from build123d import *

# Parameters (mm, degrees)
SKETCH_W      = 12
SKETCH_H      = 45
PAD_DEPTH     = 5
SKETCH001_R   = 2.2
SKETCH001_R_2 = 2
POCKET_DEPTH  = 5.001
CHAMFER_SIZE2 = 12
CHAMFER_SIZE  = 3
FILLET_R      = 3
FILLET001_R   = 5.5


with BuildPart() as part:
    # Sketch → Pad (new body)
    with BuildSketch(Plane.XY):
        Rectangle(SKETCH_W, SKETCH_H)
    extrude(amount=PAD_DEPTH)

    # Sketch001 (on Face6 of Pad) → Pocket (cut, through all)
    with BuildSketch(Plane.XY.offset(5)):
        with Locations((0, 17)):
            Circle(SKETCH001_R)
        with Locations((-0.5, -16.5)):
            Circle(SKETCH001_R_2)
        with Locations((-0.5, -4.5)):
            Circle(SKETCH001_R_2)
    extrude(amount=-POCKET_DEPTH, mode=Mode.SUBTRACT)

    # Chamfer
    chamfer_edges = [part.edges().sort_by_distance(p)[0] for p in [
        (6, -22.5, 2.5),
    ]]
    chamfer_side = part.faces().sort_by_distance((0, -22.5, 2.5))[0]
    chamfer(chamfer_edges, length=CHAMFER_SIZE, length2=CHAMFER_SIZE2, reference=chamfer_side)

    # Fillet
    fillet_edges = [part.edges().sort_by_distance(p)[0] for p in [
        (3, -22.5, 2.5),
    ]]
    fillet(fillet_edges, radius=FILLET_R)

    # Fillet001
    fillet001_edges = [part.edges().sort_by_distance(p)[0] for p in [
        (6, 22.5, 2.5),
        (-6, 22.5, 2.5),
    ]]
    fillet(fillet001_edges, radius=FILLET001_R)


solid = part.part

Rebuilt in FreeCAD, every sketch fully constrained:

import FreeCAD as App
import Part
import Sketcher

V = App.Vector


def edges_at(feature, points):
    """Names of the edges that pass closest to the given points."""
    edges = feature.Shape.Edges
    near = lambda p: min(range(len(edges)), key=lambda i: edges[i].distToShape(Part.Vertex(*p))[0])
    return sorted({f"Edge{near(p) + 1}" for p in points})


def add_polygon(sketch, points):
    """Adds a closed chain of lines whose ends are joined by coincident constraints."""
    first, n = sketch.GeometryCount, len(points)
    for a, b in zip(points, points[1:] + points[:1]):
        sketch.addGeometry(Part.LineSegment(App.Vector(*a, 0), App.Vector(*b, 0)), False)
    for i in range(n):
        sketch.addConstraint(Sketcher.Constraint("Coincident", first + i, 2, first + (i + 1) % n, 1))

doc = App.newDocument("Part")
body = doc.addObject("PartDesign::Body", "Body")

# Sketch on XY plane
sketch1 = body.newObject("Sketcher::SketchObject", "Sketch")
sketch1.AttachmentSupport = (doc.getObject("XY_Plane"), [""])
sketch1.MapMode = "FlatFace"
add_polygon(sketch1, [(-6, 22), (-6, -22), (6, -22), (6, 22)])  # lines 0-3
sketch1.addConstraint([
    Sketcher.Constraint("Vertical", 0),
    Sketcher.Constraint("Horizontal", 1),
    Sketcher.Constraint("Vertical", 2),
    Sketcher.Constraint("Horizontal", 3),
    Sketcher.Constraint("Symmetric", 0, 2, 2, 2, -1, 1),
    Sketcher.Constraint("DistanceX", 1, 1, 1, 2, 12.0),
    Sketcher.Constraint("DistanceY", 0, 2, 0, 1, 45.0),
])
pad1 = body.newObject("PartDesign::Pad", "Pad")
pad1.Profile = sketch1
pad1.Length = 5

# Sketch on XY plane
sketch2 = body.newObject("Sketcher::SketchObject", "Sketch001")
sketch2.AttachmentSupport = (doc.getObject("XY_Plane"), [""])
sketch2.MapMode = "FlatFace"
sketch2.AttachmentOffset = App.Placement(V(0, 0, 5), App.Rotation())
sketch2.addGeometry([
    Part.Circle(V(0, 17, 0), V(0, 0, 1), 2.2),
    Part.Circle(V(-0.5, -16.5, 0), V(0, 0, 1), 2),
    Part.Circle(V(-0.5, -4.5, 0), V(0, 0, 1), 2),
], False)
sketch2.addConstraint([
    Sketcher.Constraint("Equal", 1, 2),
    Sketcher.Constraint("PointOnObject", 0, 3, -2),
    Sketcher.Constraint("Vertical", 1, 3, 2, 3),
    Sketcher.Constraint("Diameter", 1, 4.0),
    Sketcher.Constraint("Diameter", 0, 4.4),
    Sketcher.Constraint("DistanceY", -1, 1, 0, 3, 17.0),
    Sketcher.Constraint("DistanceY", 1, 3, 2, 3, 12.0),
    Sketcher.Constraint("DistanceX", 1, 3, -1, 1, 0.5),
    Sketcher.Constraint("DistanceY", 1, 3, -1, 1, 16.5),
])
pocket1 = body.newObject("PartDesign::Pocket", "Pocket")
pocket1.Profile = sketch2
pocket1.Type = "ThroughAll"
doc.recompute()

chamfer = body.newObject("PartDesign::Chamfer", "Chamfer")
chamfer.Base = (pocket1, edges_at(pocket1, [(6, -22.5, 2.5)]))
chamfer.ChamferType = "Two distances"
chamfer.Size = 3
chamfer.Size2 = 12
doc.recompute()

fillet = body.newObject("PartDesign::Fillet", "Fillet")
fillet.Base = (chamfer, edges_at(chamfer, [(3, -22.5, 2.5)]))
fillet.Radius = 3
doc.recompute()

fillet2 = body.newObject("PartDesign::Fillet", "Fillet001")
fillet2.Base = (fillet, edges_at(fillet, [(6, 22.5, 2.5), (-6, 22.5, 2.5)]))
fillet2.Radius = 5.5

doc.recompute()
